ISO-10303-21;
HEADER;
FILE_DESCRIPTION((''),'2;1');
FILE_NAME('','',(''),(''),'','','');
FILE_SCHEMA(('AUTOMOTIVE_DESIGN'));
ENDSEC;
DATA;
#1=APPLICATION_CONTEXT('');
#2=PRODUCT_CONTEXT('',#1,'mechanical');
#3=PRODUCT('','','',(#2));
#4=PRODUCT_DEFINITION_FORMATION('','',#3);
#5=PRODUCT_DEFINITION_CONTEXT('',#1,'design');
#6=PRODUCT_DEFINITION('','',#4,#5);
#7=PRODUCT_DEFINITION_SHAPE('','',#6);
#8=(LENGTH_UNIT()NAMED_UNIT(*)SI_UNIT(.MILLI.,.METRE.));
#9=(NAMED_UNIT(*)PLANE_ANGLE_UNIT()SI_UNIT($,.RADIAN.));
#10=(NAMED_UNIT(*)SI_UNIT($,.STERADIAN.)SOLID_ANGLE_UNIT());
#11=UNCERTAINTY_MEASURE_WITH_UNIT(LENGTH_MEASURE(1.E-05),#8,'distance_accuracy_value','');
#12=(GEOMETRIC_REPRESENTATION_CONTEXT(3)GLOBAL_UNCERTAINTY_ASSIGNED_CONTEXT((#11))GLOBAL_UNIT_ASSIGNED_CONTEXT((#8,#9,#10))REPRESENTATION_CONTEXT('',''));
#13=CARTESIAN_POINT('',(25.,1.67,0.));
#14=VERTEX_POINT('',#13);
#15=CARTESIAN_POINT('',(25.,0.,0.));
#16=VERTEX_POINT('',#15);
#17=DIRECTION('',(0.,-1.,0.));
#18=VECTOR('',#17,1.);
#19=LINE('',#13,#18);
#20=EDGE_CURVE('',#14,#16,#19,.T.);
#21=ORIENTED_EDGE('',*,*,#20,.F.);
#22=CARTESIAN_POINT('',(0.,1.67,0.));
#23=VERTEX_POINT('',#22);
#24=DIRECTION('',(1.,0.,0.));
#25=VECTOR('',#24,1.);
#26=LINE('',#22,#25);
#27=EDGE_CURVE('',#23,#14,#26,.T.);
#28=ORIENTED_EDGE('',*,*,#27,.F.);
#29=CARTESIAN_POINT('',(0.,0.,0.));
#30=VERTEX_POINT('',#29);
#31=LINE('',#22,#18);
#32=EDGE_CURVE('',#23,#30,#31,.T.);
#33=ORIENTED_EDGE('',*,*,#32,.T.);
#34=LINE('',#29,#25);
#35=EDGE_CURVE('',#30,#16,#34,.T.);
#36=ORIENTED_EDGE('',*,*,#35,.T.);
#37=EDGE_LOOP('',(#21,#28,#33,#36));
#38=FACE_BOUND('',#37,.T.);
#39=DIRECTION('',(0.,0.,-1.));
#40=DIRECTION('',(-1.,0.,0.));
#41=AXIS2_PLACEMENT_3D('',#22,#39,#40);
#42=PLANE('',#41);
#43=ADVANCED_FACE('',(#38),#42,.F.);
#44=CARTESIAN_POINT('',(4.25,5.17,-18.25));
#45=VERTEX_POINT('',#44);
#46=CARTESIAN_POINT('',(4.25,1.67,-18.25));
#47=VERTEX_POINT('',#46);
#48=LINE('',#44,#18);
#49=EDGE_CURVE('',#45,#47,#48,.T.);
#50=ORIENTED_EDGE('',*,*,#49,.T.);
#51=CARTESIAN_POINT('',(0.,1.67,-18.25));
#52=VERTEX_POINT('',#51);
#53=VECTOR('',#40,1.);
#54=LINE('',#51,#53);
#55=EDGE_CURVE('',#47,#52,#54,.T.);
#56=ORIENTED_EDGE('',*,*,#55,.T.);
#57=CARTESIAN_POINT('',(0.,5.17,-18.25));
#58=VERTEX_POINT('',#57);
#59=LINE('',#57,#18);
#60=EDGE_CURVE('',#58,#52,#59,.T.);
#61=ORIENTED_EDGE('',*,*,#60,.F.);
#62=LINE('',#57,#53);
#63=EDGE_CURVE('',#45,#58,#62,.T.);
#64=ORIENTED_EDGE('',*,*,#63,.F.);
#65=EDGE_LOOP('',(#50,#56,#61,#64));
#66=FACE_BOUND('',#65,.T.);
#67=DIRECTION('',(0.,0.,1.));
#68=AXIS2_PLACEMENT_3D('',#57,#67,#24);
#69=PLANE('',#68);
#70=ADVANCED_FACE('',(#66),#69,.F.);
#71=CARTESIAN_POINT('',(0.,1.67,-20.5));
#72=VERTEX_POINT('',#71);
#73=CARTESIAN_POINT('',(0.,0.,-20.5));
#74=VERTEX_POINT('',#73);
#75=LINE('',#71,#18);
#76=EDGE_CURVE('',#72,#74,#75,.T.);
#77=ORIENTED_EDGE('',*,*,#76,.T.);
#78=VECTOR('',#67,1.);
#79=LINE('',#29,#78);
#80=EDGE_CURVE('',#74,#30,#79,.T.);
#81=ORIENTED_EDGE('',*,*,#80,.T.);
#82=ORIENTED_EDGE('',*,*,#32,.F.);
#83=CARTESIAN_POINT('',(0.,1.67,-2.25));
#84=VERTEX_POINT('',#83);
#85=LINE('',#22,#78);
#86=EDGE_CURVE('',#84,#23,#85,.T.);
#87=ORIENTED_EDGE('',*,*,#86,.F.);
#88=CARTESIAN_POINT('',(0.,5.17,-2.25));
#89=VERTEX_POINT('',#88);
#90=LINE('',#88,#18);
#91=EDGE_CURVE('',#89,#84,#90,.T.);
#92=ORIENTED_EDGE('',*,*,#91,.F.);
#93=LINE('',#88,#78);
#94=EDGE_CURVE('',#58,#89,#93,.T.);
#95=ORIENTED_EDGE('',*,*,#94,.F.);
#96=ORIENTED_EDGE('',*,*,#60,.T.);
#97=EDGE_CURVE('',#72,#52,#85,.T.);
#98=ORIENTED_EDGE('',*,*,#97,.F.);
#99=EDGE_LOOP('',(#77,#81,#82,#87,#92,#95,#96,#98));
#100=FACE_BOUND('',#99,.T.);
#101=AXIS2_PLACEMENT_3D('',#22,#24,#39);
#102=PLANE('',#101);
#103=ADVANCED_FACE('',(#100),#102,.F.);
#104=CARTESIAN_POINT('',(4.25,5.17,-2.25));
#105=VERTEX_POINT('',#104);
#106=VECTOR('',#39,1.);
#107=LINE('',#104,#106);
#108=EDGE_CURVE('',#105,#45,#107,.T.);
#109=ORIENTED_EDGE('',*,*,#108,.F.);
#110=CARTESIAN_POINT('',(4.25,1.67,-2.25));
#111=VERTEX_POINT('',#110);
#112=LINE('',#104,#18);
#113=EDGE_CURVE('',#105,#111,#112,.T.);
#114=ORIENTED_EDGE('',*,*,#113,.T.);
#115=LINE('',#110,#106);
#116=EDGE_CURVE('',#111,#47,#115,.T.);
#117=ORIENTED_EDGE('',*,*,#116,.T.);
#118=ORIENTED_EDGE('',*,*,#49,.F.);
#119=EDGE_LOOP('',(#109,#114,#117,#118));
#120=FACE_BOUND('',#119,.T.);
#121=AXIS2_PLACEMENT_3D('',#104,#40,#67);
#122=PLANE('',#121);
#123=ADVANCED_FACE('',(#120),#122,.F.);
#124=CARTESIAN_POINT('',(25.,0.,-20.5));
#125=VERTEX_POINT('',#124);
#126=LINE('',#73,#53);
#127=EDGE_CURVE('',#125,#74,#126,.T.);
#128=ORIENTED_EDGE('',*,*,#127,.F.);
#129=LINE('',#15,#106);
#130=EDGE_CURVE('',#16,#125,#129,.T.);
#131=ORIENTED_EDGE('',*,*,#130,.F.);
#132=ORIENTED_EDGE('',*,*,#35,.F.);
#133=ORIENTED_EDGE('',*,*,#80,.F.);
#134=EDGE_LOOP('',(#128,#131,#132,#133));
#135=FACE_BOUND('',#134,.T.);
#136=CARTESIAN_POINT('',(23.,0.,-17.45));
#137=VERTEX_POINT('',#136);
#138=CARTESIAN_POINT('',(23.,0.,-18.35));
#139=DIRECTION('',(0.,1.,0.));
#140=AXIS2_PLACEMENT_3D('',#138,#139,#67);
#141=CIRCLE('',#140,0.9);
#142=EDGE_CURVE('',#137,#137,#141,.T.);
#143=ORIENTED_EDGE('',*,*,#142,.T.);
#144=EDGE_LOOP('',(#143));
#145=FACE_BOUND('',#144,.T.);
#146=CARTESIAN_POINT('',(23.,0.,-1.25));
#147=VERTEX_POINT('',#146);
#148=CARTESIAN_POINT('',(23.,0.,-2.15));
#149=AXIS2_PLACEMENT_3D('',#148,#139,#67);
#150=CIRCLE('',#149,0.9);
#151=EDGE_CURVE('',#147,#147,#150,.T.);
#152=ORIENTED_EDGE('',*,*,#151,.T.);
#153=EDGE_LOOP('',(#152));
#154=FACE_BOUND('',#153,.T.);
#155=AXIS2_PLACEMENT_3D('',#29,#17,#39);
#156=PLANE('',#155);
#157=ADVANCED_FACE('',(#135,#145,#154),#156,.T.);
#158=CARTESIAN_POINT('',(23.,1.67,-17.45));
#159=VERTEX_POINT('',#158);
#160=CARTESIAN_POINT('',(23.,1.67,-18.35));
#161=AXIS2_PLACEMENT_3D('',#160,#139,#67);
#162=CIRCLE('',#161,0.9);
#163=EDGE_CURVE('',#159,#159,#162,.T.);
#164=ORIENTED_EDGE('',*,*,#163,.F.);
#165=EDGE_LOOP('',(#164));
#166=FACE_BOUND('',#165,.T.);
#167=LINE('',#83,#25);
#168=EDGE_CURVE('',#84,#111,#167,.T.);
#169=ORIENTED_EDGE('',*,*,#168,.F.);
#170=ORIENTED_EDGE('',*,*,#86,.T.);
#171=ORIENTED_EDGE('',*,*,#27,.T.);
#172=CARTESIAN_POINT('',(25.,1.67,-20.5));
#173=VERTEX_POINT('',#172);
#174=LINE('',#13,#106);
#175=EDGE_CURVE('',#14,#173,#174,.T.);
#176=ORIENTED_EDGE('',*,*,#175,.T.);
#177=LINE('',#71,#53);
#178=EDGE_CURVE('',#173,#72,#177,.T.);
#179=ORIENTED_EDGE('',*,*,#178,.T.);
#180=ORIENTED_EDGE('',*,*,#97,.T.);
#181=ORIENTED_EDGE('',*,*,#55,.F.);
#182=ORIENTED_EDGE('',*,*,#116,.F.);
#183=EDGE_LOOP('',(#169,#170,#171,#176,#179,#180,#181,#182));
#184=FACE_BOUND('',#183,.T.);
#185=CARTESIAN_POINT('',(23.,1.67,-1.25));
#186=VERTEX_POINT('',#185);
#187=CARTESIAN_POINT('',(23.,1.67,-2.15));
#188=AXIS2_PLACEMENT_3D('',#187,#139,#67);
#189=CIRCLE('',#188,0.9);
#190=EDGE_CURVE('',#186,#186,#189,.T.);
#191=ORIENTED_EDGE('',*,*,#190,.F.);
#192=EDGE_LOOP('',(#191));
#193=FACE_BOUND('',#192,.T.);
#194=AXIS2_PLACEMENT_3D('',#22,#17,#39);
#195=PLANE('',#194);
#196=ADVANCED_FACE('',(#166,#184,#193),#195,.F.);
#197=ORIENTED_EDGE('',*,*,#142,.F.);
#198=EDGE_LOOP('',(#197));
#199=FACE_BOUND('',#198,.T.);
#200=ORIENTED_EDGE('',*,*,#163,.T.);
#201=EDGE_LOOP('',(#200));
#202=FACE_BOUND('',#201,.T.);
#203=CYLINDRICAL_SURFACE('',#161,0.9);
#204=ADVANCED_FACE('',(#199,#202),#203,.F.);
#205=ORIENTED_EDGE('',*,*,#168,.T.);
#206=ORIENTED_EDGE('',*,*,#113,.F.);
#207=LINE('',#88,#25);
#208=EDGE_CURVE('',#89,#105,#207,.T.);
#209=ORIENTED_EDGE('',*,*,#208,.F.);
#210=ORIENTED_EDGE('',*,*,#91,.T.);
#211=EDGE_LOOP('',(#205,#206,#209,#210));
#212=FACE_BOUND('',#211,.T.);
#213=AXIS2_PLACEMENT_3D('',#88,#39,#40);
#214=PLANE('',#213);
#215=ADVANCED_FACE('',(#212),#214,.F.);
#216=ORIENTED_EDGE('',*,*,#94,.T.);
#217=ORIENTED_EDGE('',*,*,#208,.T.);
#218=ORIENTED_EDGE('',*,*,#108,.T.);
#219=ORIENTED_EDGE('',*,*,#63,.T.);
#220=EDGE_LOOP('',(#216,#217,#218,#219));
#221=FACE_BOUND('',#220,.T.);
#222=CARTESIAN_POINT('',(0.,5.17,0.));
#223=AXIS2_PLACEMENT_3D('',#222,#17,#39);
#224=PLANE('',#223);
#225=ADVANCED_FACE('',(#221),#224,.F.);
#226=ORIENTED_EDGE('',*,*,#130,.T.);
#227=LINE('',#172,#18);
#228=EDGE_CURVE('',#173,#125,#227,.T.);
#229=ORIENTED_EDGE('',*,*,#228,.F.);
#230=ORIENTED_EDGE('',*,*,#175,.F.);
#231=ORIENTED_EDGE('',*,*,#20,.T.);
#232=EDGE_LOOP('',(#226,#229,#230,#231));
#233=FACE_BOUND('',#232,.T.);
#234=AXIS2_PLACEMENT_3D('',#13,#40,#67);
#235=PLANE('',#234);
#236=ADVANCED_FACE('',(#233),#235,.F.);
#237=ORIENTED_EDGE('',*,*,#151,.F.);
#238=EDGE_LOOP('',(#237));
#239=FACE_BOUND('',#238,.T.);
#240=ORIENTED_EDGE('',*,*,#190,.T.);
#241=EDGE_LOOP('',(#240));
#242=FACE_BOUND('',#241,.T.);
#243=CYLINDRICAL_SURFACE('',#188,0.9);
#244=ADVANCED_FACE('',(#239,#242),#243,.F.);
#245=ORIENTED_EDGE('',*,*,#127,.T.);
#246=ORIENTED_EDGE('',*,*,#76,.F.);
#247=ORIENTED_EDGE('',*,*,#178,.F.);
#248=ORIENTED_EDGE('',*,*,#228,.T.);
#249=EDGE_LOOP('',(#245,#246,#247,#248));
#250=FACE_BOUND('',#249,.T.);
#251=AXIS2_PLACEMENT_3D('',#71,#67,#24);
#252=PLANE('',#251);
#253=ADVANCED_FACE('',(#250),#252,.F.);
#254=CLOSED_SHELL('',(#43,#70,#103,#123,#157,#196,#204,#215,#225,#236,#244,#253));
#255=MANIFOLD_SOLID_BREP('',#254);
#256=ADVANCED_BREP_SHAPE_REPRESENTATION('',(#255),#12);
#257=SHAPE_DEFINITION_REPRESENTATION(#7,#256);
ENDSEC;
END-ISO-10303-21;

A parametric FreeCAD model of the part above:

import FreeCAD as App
import Part
import Sketcher
from FreeCAD import Vector

doc = App.newDocument("Part")
body = doc.addObject("PartDesign::Body", "Body")

# Sketch on XZ plane
sketch1 = doc.addObject("Sketcher::SketchObject", "Sketch")
body.addObject(sketch1)
sketch1.AttachmentSupport = (doc.XZ_Plane, [""])
sketch1.MapMode = "FlatFace"
sketch1.addGeometry([
    Part.LineSegment(Vector(0, -20, 0), Vector(0, 0, 0)),
    Part.LineSegment(Vector(0, 0, 0), Vector(25, 0, 0)),
    Part.LineSegment(Vector(25, 0, 0), Vector(25, -20, 0)),
    Part.LineSegment(Vector(25, -20, 0), Vector(0, -20, 0)),
], False)
sketch1.addConstraint([
    Sketcher.Constraint("Coincident", 0, 2, 1, 1),
    Sketcher.Constraint("Coincident", 1, 2, 2, 1),
    Sketcher.Constraint("Coincident", 2, 2, 3, 1),
    Sketcher.Constraint("Coincident", 3, 2, 0, 1),
    Sketcher.Constraint("Vertical", 0),
    Sketcher.Constraint("Horizontal", 1),
    Sketcher.Constraint("Vertical", 2),
    Sketcher.Constraint("Horizontal", 3),
    Sketcher.Constraint("Coincident", 0, 2, -1, 1),
    Sketcher.Constraint("DistanceX", 1, 1, 1, 2, 25.0),
    Sketcher.Constraint("DistanceY", 0, 1, 0, 2, 20.5),
])
pad1 = doc.addObject("PartDesign::Pad", "Pad")
body.addObject(pad1)
pad1.Profile = sketch1
pad1.Length = 1.67
pad1.Reversed = True

# Sketch on XZ plane
sketch2 = doc.addObject("Sketcher::SketchObject", "Sketch001")
body.addObject(sketch2)
sketch2.AttachmentSupport = (doc.XZ_Plane, [""])
sketch2.MapMode = "FlatFace"
sketch2.AttachmentOffset = App.Placement(Vector(0, 0, -1.67), App.Rotation())
sketch2.addGeometry([
    Part.Circle(Vector(23, -18.4, 0), Vector(0, 0, 1), 0.9),
    Part.Circle(Vector(23, -2.1, 0), Vector(0, 0, 1), 0.9),
], False)
sketch2.addConstraint([
    Sketcher.Constraint("Equal", 0, 1),
    Sketcher.Constraint("Vertical", 0, 3, 1, 3),
    Sketcher.Constraint("Diameter", 0, 1.8),
    Sketcher.Constraint("DistanceX", -1, 1, 0, 3, 23.0),
    Sketcher.Constraint("DistanceY", 0, 3, 1, 3, 16.2),
    Sketcher.Constraint("DistanceY", 0, 3, -1, 1, 18.35),
])
doc.recompute()
hole = doc.addObject("PartDesign::Hole", "Hole")
body.addObject(hole)
hole.Profile = sketch2
hole.ThreadType = "None"
hole.Diameter = 1.8
hole.DepthType = "ThroughAll"
hole.Reversed = True

# Sketch on XZ plane
sketch3 = doc.addObject("Sketcher::SketchObject", "Sketch002")
body.addObject(sketch3)
sketch3.AttachmentSupport = (doc.XZ_Plane, [""])
sketch3.MapMode = "FlatFace"
sketch3.AttachmentOffset = App.Placement(Vector(0, 0, -1.67), App.Rotation())
sketch3.addGeometry([
    Part.LineSegment(Vector(0, -18.2, 0), Vector(0, -2.2, 0)),
    Part.LineSegment(Vector(0, -2.2, 0), Vector(4.2, -2.2, 0)),
    Part.LineSegment(Vector(4.2, -2.2, 0), Vector(4.2, -18.2, 0)),
    Part.LineSegment(Vector(4.2, -18.2, 0), Vector(0, -18.2, 0)),
], False)
sketch3.addConstraint([
    Sketcher.Constraint("Coincident", 0, 2, 1, 1),
    Sketcher.Constraint("Coincident", 1, 2, 2, 1),
    Sketcher.Constraint("Coincident", 2, 2, 3, 1),
    Sketcher.Constraint("Coincident", 3, 2, 0, 1),
    Sketcher.Constraint("Vertical", 0),
    Sketcher.Constraint("Horizontal", 1),
    Sketcher.Constraint("Vertical", 2),
    Sketcher.Constraint("Horizontal", 3),
    Sketcher.Constraint("PointOnObject", 0, 2, -2),
    Sketcher.Constraint("DistanceY", 0, 1, 0, 2, 16.0),
    Sketcher.Constraint("DistanceX", 1, 1, 1, 2, 4.25),
    Sketcher.Constraint("DistanceY", 0, 2, -1, 1, 2.25),
])
pad2 = doc.addObject("PartDesign::Pad", "Pad001")
body.addObject(pad2)
pad2.Profile = sketch3
pad2.Length = 3.5
pad2.Reversed = True

doc.recompute()
